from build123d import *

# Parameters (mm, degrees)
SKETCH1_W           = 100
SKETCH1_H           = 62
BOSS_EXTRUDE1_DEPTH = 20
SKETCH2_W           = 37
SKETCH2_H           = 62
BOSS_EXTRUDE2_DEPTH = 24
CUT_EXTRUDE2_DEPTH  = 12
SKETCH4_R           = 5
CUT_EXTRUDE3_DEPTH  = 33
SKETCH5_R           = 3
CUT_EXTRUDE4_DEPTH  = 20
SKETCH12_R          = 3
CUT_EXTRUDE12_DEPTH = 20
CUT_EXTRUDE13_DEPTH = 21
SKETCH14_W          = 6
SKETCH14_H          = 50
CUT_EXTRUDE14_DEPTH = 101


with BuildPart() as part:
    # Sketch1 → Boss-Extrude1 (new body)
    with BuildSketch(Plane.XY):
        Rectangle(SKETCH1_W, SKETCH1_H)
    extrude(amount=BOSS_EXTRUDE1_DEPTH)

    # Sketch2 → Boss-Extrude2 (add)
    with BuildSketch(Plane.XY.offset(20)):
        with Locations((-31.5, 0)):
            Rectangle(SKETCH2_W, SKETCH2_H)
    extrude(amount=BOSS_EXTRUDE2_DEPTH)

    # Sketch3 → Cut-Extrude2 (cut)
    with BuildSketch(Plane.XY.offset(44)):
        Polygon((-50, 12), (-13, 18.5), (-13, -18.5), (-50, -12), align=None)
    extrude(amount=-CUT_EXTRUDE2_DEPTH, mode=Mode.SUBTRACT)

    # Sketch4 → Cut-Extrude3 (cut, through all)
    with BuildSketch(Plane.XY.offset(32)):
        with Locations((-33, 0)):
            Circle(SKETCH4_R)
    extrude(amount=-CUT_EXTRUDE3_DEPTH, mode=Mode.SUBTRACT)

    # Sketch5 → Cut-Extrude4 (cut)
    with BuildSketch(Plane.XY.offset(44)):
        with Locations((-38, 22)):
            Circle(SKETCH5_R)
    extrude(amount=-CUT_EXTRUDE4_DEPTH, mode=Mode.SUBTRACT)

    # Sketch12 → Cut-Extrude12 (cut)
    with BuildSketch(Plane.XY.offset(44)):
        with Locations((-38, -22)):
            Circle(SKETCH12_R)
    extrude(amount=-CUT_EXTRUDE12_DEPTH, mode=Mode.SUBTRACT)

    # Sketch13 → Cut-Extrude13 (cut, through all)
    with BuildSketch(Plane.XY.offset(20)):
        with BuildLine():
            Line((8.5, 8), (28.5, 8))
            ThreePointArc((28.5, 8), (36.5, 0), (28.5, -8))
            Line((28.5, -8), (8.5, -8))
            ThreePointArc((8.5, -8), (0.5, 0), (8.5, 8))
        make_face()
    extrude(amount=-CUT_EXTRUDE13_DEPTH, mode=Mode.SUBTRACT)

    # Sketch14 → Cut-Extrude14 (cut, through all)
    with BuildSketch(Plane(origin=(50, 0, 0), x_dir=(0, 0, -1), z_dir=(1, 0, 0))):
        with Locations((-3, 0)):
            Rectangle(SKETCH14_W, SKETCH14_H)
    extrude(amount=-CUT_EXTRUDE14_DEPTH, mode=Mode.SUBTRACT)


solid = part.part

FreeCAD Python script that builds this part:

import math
import FreeCAD as App
import Part
import Sketcher
from FreeCAD import Vector
Q = App.Units.Quantity


def add_polygon(sketch, points):
    """Adds a closed chain of lines whose ends are joined by coincident constraints."""
    first, n = sketch.GeometryCount, len(points)
    for a, b in zip(points, points[1:] + points[:1]):
        sketch.addGeometry(Part.LineSegment(App.Vector(*a, 0), App.Vector(*b, 0)), False)
    for i in range(n):
        sketch.addConstraint(Sketcher.Constraint("Coincident", first + i, 2, first + (i + 1) % n, 1))

doc = App.newDocument("Part")
body = doc.addObject("PartDesign::Body", "Body")

# Sketch on XY plane
sketch1 = body.newObject("Sketcher::SketchObject", "Sketch")
sketch1.AttachmentSupport = (doc.getObject("XY_Plane"), [""])
sketch1.MapMode = "FlatFace"
add_polygon(sketch1, [(-50, 31), (-50, -31), (50, -31), (50, 31)])  # lines 0-3
sketch1.addConstraint([
    Sketcher.Constraint("Vertical", 0),
    Sketcher.Constraint("Horizontal", 1),
    Sketcher.Constraint("Vertical", 2),
    Sketcher.Constraint("Horizontal", 3),
    Sketcher.Constraint("Symmetric", 0, 2, 2, 2, -1, 1),
    Sketcher.Constraint("DistanceX", 1, 1, 1, 2, Q("100 mm")),
    Sketcher.Constraint("DistanceY", 0, 2, 0, 1, Q("62 mm")),
])
pad1 = body.newObject("PartDesign::Pad", "Pad")
pad1.Profile = sketch1
pad1.Length = 20

# Sketch on XY plane
sketch2 = body.newObject("Sketcher::SketchObject", "Sketch001")
sketch2.AttachmentSupport = (doc.getObject("XY_Plane"), [""])
sketch2.MapMode = "FlatFace"
sketch2.AttachmentOffset = App.Placement(Vector(0, 0, 20), App.Rotation())
add_polygon(sketch2, [(-50, 31), (-50, -31), (-13, -31), (-13, 31)])  # lines 0-3
sketch2.addConstraint([
    Sketcher.Constraint("Vertical", 0),
    Sketcher.Constraint("Horizontal", 1),
    Sketcher.Constraint("Vertical", 2),
    Sketcher.Constraint("Horizontal", 3),
    Sketcher.Constraint("DistanceX", 1, 1, 1, 2, Q("37 mm")),
    Sketcher.Constraint("DistanceY", 0, 2, 0, 1, Q("62 mm")),
    Sketcher.Constraint("DistanceX", 0, 2, -1, 1, Q("50 mm")),
    Sketcher.Constraint("DistanceY", 0, 2, -1, 1, Q("31 mm")),
])
pad2 = body.newObject("PartDesign::Pad", "Pad001")
pad2.Profile = sketch2
pad2.Length = 24

# Sketch on XY plane
sketch3 = body.newObject("Sketcher::SketchObject", "Sketch002")
sketch3.AttachmentSupport = (doc.getObject("XY_Plane"), [""])
sketch3.MapMode = "FlatFace"
sketch3.AttachmentOffset = App.Placement(Vector(0, 0, 44), App.Rotation())
add_polygon(sketch3, [(-13, 18), (-50, 12), (-50, -12), (-13, -18)])  # lines 0-3
sketch3.addConstraint([
    Sketcher.Constraint("Vertical", 1),
    Sketcher.Constraint("Vertical", 3),
    Sketcher.Constraint("Equal", 0, 2),
    Sketcher.Constraint("DistanceY", 1, 2, 1, 1, Q("24 mm")),
    Sketcher.Constraint("DistanceY", 3, 1, 3, 2, Q("37 mm")),
    Sketcher.Constraint("DistanceX", 0, 2, -1, 1, Q("50 mm")),
    Sketcher.Constraint("DistanceY", -1, 1, 0, 2, Q("12 mm")),
    Sketcher.Constraint("DistanceX", 2, 2, -1, 1, Q("13 mm")),
])
pocket1 = body.newObject("PartDesign::Pocket", "Pocket")
pocket1.Profile = sketch3
pocket1.Length = 12

# Sketch on XY plane
sketch4 = body.newObject("Sketcher::SketchObject", "Sketch003")
sketch4.AttachmentSupport = (doc.getObject("XY_Plane"), [""])
sketch4.MapMode = "FlatFace"
sketch4.AttachmentOffset = App.Placement(Vector(0, 0, 32), App.Rotation())
sketch4.addGeometry(Part.Circle(Vector(-33, 0, 0), Vector(0, 0, 1), 5), False)
sketch4.addConstraint([
    Sketcher.Constraint("PointOnObject", 0, 3, -1),
    Sketcher.Constraint("Diameter", 0, Q("10 mm")),
    Sketcher.Constraint("DistanceX", 0, 3, -1, 1, Q("33 mm")),
])
pocket2 = body.newObject("PartDesign::Pocket", "Pocket001")
pocket2.Profile = sketch4
pocket2.Type = "ThroughAll"

# Sketch on XY plane
sketch5 = body.newObject("Sketcher::SketchObject", "Sketch004")
sketch5.AttachmentSupport = (doc.getObject("XY_Plane"), [""])
sketch5.MapMode = "FlatFace"
sketch5.AttachmentOffset = App.Placement(Vector(0, 0, 44), App.Rotation())
sketch5.addGeometry(Part.Circle(Vector(-38, 22, 0), Vector(0, 0, 1), 3), False)
sketch5.addConstraint([
    Sketcher.Constraint("Diameter", 0, Q("6 mm")),
    Sketcher.Constraint("DistanceX", 0, 3, -1, 1, Q("38 mm")),
    Sketcher.Constraint("DistanceY", -1, 1, 0, 3, Q("22 mm")),
])
pocket3 = body.newObject("PartDesign::Pocket", "Pocket002")
pocket3.Profile = sketch5
pocket3.Length = 20

# Sketch on XY plane
sketch6 = body.newObject("Sketcher::SketchObject", "Sketch005")
sketch6.AttachmentSupport = (doc.getObject("XY_Plane"), [""])
sketch6.MapMode = "FlatFace"
sketch6.AttachmentOffset = App.Placement(Vector(0, 0, 44), App.Rotation())
sketch6.addGeometry(Part.Circle(Vector(-38, -22, 0), Vector(0, 0, 1), 3), False)
sketch6.addConstraint([
    Sketcher.Constraint("Diameter", 0, Q("6 mm")),
    Sketcher.Constraint("DistanceX", 0, 3, -1, 1, Q("38 mm")),
    Sketcher.Constraint("DistanceY", 0, 3, -1, 1, Q("22 mm")),
])
pocket4 = body.newObject("PartDesign::Pocket", "Pocket003")
pocket4.Profile = sketch6
pocket4.Length = 20

# Sketch on XY plane
sketch7 = body.newObject("Sketcher::SketchObject", "Sketch006")
sketch7.AttachmentSupport = (doc.getObject("XY_Plane"), [""])
sketch7.MapMode = "FlatFace"
sketch7.AttachmentOffset = App.Placement(Vector(0, 0, 20), App.Rotation())
sketch7.addGeometry([
    Part.LineSegment(Vector(28, 8, 0), Vector(8, 8, 0)),
    Part.ArcOfCircle(Part.Circle(Vector(8, 0, 0), Vector(0, 0, 1), 8), math.radians(90), math.radians(270)),
    Part.LineSegment(Vector(8, -8, 0), Vector(28, -8, 0)),
    Part.ArcOfCircle(Part.Circle(Vector(28, 0, 0), Vector(0, 0, 1), 8), math.radians(-90), math.radians(90)),
], False)
sketch7.addConstraint([
    Sketcher.Constraint("Tangent", 0, 2, 1, 1),
    Sketcher.Constraint("Tangent", 1, 2, 2, 1),
    Sketcher.Constraint("Tangent", 2, 2, 3, 1),
    Sketcher.Constraint("Tangent", 3, 2, 0, 1),
    Sketcher.Constraint("Horizontal", 0),
    Sketcher.Constraint("Horizontal", 2),
    Sketcher.Constraint("PointOnObject", 1, 3, -1),
    Sketcher.Constraint("Radius", 1, Q("8 mm")),
    Sketcher.Constraint("DistanceX", 0, 2, 0, 1, Q("20 mm")),
    Sketcher.Constraint("DistanceX", -1, 1, 1, 3, Q("8.5 mm")),
])
pocket5 = body.newObject("PartDesign::Pocket", "Pocket004")
pocket5.Profile = sketch7
pocket5.Type = "ThroughAll"

# Sketch on YZ plane
sketch8 = body.newObject("Sketcher::SketchObject", "Sketch007")
sketch8.AttachmentSupport = (doc.getObject("YZ_Plane"), [""])
sketch8.MapMode = "FlatFace"
sketch8.AttachmentOffset = App.Placement(Vector(0, 0, 50), App.Rotation())
add_polygon(sketch8, [(25, 6), (-25, 6), (-25, 0), (25, 0)])  # lines 0-3
sketch8.addConstraint([
    Sketcher.Constraint("Horizontal", 0),
    Sketcher.Constraint("Vertical", 1),
    Sketcher.Constraint("Horizontal", 2),
    Sketcher.Constraint("Vertical", 3),
    Sketcher.Constraint("Symmetric", 1, 2, 2, 2, -1, 1),
    Sketcher.Constraint("DistanceX", 0, 2, 0, 1, Q("50 mm")),
    Sketcher.Constraint("DistanceY", 1, 2, 1, 1, Q("6 mm")),
])
pocket6 = body.newObject("PartDesign::Pocket", "Pocket005")
pocket6.Profile = sketch8
pocket6.Type = "ThroughAll"

doc.recompute()
